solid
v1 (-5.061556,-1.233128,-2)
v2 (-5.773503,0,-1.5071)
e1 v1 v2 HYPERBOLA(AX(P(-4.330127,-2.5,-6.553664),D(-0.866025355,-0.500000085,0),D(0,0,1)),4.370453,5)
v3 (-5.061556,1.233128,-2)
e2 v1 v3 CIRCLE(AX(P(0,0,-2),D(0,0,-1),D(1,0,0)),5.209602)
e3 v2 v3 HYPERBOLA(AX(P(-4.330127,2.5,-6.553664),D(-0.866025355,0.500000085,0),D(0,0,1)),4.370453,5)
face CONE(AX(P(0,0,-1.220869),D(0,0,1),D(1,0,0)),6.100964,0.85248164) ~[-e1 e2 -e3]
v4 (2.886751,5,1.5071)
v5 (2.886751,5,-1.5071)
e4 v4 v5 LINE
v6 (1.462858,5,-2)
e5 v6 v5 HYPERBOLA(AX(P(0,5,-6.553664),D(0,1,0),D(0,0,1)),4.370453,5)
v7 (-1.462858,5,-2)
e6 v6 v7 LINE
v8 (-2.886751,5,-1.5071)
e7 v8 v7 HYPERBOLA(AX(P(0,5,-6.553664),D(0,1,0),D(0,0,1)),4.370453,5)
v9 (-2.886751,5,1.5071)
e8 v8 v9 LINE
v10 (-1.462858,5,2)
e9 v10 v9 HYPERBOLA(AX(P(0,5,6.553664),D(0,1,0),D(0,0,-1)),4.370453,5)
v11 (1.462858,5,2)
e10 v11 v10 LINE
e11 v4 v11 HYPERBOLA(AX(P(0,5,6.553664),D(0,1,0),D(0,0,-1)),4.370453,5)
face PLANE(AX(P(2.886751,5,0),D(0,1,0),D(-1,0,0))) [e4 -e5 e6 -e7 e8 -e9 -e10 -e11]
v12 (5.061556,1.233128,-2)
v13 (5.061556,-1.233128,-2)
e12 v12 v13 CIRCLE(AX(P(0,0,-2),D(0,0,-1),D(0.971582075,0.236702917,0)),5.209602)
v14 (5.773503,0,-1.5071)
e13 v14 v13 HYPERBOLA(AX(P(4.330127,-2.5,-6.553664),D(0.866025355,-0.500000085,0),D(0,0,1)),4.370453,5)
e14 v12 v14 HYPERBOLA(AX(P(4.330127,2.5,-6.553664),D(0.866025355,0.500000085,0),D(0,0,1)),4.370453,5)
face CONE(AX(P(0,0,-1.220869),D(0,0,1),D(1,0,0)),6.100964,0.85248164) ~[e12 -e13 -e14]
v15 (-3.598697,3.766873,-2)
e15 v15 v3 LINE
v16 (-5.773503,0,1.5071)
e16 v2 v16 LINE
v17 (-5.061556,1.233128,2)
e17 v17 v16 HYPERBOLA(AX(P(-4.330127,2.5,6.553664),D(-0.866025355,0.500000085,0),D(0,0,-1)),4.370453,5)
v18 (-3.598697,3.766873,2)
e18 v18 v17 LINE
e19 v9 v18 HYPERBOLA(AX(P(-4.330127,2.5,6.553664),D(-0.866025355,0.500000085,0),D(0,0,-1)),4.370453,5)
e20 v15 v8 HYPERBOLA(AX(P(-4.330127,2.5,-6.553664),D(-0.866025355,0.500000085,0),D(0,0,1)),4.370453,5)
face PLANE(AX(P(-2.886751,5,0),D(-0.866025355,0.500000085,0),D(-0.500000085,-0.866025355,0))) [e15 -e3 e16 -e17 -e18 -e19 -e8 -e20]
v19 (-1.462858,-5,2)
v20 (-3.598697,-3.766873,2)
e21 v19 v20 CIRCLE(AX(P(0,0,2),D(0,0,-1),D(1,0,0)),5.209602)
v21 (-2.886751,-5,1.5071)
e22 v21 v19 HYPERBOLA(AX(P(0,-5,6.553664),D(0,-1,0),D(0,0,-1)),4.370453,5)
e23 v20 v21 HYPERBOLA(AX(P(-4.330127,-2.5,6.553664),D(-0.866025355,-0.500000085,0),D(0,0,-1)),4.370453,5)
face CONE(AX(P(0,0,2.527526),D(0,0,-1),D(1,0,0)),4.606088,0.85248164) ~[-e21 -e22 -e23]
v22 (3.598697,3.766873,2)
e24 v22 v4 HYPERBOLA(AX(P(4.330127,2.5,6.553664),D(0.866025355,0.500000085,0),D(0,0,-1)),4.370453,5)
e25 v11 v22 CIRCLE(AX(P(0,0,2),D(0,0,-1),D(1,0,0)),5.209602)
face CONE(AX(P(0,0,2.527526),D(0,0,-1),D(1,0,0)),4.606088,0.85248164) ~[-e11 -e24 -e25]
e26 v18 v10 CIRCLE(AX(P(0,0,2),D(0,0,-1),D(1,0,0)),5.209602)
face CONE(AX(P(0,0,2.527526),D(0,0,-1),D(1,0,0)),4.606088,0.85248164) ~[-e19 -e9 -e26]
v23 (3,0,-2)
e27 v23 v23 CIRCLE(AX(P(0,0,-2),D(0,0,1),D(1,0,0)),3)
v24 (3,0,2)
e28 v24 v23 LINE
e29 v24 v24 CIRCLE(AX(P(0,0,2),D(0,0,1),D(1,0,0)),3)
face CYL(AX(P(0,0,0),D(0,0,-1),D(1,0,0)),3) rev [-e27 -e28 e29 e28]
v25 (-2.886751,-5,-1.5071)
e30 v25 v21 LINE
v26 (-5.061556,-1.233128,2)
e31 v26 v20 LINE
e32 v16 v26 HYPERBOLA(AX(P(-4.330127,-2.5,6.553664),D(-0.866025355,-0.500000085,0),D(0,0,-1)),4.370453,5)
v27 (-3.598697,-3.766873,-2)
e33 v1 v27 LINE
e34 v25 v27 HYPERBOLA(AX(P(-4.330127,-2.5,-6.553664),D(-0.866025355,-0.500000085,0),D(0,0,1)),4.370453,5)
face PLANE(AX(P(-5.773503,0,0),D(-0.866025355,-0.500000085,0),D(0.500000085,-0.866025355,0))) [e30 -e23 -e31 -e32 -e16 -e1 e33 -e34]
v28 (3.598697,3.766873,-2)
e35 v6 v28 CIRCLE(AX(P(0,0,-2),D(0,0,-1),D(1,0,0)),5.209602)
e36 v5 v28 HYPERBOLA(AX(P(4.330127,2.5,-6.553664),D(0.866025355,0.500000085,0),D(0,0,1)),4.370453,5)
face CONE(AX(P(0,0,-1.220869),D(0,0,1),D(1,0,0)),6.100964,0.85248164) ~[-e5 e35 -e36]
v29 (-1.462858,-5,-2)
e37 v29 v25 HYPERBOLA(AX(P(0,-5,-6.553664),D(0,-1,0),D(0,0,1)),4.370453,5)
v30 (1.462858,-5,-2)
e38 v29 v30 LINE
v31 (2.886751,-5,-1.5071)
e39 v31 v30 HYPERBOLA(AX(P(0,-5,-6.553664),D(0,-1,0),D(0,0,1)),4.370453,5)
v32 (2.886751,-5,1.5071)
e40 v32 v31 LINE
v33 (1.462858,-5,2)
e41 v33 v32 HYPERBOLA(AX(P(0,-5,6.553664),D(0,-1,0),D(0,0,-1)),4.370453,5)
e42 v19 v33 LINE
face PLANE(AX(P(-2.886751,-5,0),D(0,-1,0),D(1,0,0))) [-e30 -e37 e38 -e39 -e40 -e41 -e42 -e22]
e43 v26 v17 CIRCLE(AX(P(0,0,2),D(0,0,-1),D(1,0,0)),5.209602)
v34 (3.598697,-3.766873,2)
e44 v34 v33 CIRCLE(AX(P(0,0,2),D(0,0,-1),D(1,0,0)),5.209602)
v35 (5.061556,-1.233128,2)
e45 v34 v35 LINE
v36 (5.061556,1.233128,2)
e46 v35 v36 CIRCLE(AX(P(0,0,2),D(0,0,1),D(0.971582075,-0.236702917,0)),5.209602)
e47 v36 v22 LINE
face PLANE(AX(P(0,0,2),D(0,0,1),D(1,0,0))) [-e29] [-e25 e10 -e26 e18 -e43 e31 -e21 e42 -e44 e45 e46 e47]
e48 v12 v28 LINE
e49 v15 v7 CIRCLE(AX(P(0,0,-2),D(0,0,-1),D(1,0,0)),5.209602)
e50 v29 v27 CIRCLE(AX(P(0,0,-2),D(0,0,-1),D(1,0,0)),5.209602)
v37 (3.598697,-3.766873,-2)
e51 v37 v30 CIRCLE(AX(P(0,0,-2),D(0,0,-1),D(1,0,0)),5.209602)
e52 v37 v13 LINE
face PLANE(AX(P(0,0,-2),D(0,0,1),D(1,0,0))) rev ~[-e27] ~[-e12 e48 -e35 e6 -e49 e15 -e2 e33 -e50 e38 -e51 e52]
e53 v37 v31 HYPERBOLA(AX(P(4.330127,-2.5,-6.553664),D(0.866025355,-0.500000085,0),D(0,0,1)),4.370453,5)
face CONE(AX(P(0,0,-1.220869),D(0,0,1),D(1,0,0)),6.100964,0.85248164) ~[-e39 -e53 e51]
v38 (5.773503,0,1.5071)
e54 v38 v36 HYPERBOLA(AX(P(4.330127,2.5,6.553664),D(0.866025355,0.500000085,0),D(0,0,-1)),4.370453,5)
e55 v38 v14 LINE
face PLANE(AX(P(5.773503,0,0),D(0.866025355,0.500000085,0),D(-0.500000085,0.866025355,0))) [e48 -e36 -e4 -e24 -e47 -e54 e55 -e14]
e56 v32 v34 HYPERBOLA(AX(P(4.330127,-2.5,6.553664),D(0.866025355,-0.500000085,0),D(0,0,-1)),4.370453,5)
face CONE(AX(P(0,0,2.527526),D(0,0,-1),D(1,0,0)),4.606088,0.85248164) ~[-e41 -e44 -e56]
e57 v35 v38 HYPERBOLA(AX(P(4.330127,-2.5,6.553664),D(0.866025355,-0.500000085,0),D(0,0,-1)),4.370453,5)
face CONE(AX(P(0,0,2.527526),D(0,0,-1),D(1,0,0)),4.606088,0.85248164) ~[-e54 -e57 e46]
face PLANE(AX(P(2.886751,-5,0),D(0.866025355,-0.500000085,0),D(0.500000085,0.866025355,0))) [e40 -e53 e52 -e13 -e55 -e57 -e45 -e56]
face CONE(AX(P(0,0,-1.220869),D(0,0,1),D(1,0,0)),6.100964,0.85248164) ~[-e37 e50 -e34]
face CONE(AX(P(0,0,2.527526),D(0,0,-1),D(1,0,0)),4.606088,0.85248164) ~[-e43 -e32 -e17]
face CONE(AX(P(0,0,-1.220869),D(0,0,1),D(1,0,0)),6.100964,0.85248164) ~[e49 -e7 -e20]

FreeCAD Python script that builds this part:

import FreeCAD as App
import Part
import Sketcher
from FreeCAD import Vector
Q = App.Units.Quantity


def add_polygon(sketch, points):
    """Adds a closed chain of lines whose ends are joined by coincident constraints."""
    first, n = sketch.GeometryCount, len(points)
    for a, b in zip(points, points[1:] + points[:1]):
        sketch.addGeometry(Part.LineSegment(App.Vector(*a, 0), App.Vector(*b, 0)), False)
    for i in range(n):
        sketch.addConstraint(Sketcher.Constraint("Coincident", first + i, 2, first + (i + 1) % n, 1))

doc = App.newDocument("Part")
body = doc.addObject("PartDesign::Body", "Body")

# Sketch on XY plane
sketch1 = body.newObject("Sketcher::SketchObject", "Sketch")
sketch1.AttachmentSupport = (doc.getObject("XY_Plane"), [""])
sketch1.MapMode = "FlatFace"
add_polygon(sketch1, [(2.886751, 5), (-2.886751, 5), (-5.773503, 0), (-2.886751, -5), (2.886751, -5), (5.773503, 0)])  # lines 0-5
sketch1.addGeometry(Part.Circle(Vector(0, 0, 0), Vector(0, 0, 1), 3), False)  # 6
sketch1.addConstraint(Sketcher.Constraint("Horizontal", 0))
sketch1.addConstraint(Sketcher.Constraint("Horizontal", 3))
sketch1.addConstraint(Sketcher.Constraint("Coincident", 6, 3, -1, 1))
sketch1.addConstraint(Sketcher.Constraint("Symmetric", 0, 2, 3, 2, -1, 1))
sketch1.addConstraint(Sketcher.Constraint("Symmetric", 1, 2, 4, 2, -1, 1))
sketch1.addConstraint(Sketcher.Constraint("PointOnObject", 1, 2, -1))
sketch1.addConstraint(Sketcher.Constraint("Parallel", 2, 5))
sketch1.addConstraint(Sketcher.Constraint("Vertical", 0, 2, 2, 2))
sketch1.addConstraint(Sketcher.Constraint("Diameter", 6, Q("6 mm")))
sketch1.addConstraint(Sketcher.Constraint("Angle", 1, Q("-120.000006 deg")))
sketch1.addConstraint(Sketcher.Constraint("DistanceY", -1, 1, 0, 2, Q("5 mm")))
sketch1.addConstraint(Sketcher.Constraint("DistanceX", 0, 2, 0, 1, Q("5.773502 mm")))
pad1 = body.newObject("PartDesign::Pad", "Pad")
pad1.Profile = sketch1
pad1.Length = 4
pad1.Midplane = True

# Sketch on XZ plane
sketch2 = body.newObject("Sketcher::SketchObject", "Sketch001")
sketch2.AttachmentSupport = (doc.getObject("XZ_Plane"), [""])
sketch2.MapMode = "FlatFace"
add_polygon(sketch2, [(4.606088, 2.527526), (6.100964, 1.220869), (6.100964, -1.220869), (4.606088, -2.527526), (7.425626, -2.527526), (7.425626, 2.527526)])  # lines 0-5
sketch2.addConstraint(Sketcher.Constraint("Vertical", 1))
sketch2.addConstraint(Sketcher.Constraint("Horizontal", 3))
sketch2.addConstraint(Sketcher.Constraint("Vertical", 4))
sketch2.addConstraint(Sketcher.Constraint("Horizontal", 5))
sketch2.addConstraint(Sketcher.Constraint("Symmetric", 2, 2, 5, 2, -1))
sketch2.addConstraint(Sketcher.Constraint("Equal", 0, 2))
sketch2.addConstraint(Sketcher.Constraint("DistanceX", 3, 1, 3, 2, Q("2.819538 mm")))
sketch2.addConstraint(Sketcher.Constraint("DistanceY", 1, 2, 1, 1, Q("2.441738 mm")))
sketch2.addConstraint(Sketcher.Constraint("Distance", 0, Q("1.985449 mm")))
sketch2.addConstraint(Sketcher.Constraint("DistanceY", 4, 1, 4, 2, Q("5.055052 mm")))
sketch2.addConstraint(Sketcher.Constraint("DistanceX", -1, 1, 0, 2, Q("6.100964 mm")))
groove = body.newObject("PartDesign::Groove", "Groove")
groove.Profile = sketch2
groove.ReferenceAxis = (sketch2, ["V_Axis"])
groove.Angle = 360

doc.recompute()
